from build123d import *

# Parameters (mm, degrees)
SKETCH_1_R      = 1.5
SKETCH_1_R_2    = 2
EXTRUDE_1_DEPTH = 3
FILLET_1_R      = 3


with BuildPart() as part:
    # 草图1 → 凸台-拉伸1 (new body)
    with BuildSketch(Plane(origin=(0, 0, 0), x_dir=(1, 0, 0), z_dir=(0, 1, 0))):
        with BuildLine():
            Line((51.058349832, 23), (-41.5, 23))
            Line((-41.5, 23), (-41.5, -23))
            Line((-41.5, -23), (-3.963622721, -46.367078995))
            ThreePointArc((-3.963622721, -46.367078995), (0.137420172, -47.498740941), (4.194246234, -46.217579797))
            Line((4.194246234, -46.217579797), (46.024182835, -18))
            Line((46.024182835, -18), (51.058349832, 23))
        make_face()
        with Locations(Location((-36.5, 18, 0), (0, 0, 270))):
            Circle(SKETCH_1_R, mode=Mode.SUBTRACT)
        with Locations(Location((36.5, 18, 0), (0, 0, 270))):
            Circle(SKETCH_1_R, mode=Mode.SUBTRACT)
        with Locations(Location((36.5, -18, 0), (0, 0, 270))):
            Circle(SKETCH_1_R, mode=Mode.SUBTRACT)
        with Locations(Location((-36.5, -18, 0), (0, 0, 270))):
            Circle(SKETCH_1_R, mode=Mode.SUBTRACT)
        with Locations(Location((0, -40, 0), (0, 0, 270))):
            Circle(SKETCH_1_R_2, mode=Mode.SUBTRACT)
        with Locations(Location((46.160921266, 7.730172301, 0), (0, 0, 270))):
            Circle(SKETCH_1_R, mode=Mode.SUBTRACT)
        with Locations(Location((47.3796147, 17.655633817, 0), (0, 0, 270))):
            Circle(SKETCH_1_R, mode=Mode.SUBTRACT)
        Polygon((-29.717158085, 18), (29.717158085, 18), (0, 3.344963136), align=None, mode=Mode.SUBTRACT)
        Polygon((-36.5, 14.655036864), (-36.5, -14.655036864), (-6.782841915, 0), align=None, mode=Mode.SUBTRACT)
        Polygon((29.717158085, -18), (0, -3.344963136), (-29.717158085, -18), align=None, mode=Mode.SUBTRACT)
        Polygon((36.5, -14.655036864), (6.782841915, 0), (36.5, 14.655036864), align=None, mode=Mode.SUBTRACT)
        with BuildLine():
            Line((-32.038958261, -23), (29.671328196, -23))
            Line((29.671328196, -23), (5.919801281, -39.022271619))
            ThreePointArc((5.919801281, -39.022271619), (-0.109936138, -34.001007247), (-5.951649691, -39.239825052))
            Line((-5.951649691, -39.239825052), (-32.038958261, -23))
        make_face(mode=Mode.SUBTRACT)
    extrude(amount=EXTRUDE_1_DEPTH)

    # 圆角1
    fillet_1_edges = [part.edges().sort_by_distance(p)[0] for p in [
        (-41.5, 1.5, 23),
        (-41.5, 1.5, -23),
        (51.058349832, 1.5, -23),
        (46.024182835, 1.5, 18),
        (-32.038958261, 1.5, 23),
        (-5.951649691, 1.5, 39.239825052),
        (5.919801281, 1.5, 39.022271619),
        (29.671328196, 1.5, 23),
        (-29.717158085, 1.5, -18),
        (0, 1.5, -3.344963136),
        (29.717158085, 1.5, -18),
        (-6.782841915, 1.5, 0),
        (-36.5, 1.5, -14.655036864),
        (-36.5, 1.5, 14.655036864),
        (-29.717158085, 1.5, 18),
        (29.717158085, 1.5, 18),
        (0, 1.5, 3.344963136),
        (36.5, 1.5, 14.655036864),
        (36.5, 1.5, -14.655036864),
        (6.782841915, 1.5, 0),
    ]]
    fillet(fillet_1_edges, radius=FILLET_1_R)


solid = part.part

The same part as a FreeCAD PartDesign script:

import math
import FreeCAD as App
import Part
import Sketcher
from FreeCAD import Vector
Q = App.Units.Quantity


def edges_at(feature, points):
    """Names of the edges that pass closest to the given points."""
    edges = feature.Shape.Edges
    near = lambda p: min(range(len(edges)), key=lambda i: edges[i].distToShape(Part.Vertex(*p))[0])
    return sorted({f"Edge{near(p) + 1}" for p in points})


def add_polygon(sketch, points):
    """Adds a closed chain of lines whose ends are joined by coincident constraints."""
    first, n = sketch.GeometryCount, len(points)
    for a, b in zip(points, points[1:] + points[:1]):
        sketch.addGeometry(Part.LineSegment(App.Vector(*a, 0), App.Vector(*b, 0)), False)
    for i in range(n):
        sketch.addConstraint(Sketcher.Constraint("Coincident", first + i, 2, first + (i + 1) % n, 1))

doc = App.newDocument("Part")
body = doc.addObject("PartDesign::Body", "Body")

# Sketch on XZ plane
sketch1 = body.newObject("Sketcher::SketchObject", "Sketch")
sketch1.AttachmentSupport = (doc.getObject("XZ_Plane"), [""])
sketch1.MapMode = "FlatFace"
sketch1.addGeometry(Part.LineSegment(Vector(51.05835, -23, 0), Vector(-41.5, -23, 0)), False)  # 0
sketch1.addGeometry(Part.LineSegment(Vector(-41.5, -23, 0), Vector(-41.5, 23, 0)), False)  # 1
sketch1.addGeometry(Part.LineSegment(Vector(-41.5, 23, 0), Vector(-3.963623, 46.367079, 0)), False)  # 2
sketch1.addGeometry(Part.ArcOfCircle(Part.Circle(Vector(0, 40, 0), Vector(0, 0, 1), 7.5), math.radians(55.997241), math.radians(121.903016)), False)  # 3
sketch1.addGeometry(Part.LineSegment(Vector(4.194246, 46.21758, 0), Vector(46.024183, 18, 0)), False)  # 4
sketch1.addGeometry(Part.LineSegment(Vector(46.024183, 18, 0), Vector(51.05835, -23, 0)), False)  # 5
sketch1.addGeometry(Part.Circle(Vector(0, 40, 0), Vector(0, 0, 1), 2), False)  # 6
sketch1.addGeometry(Part.LineSegment(Vector(-5.95165, 39.239825, 0), Vector(-32.038958, 23, 0)), False)  # 7
sketch1.addGeometry(Part.LineSegment(Vector(-32.038958, 23, 0), Vector(29.671328, 23, 0)), False)  # 8
sketch1.addGeometry(Part.LineSegment(Vector(29.671328, 23, 0), Vector(5.919801, 39.022272, 0)), False)  # 9
sketch1.addGeometry(Part.ArcOfCircle(Part.Circle(Vector(0, 40, 0), Vector(0, 0, 1), 6), math.radians(-172.721302), math.radians(-9.378441)), False)  # 10
sketch1.addGeometry(Part.Circle(Vector(-36.5, 18, 0), Vector(0, 0, 1), 1.5), False)  # 11
sketch1.addGeometry(Part.Circle(Vector(36.5, 18, 0), Vector(0, 0, 1), 1.5), False)  # 12
add_polygon(sketch1, [(-36.5, 14.655037), (-36.5, -14.655037), (-6.782842, 0)])  # lines 13-15
add_polygon(sketch1, [(0, 3.344963), (29.717158, 18), (-29.717158, 18)])  # lines 16-18
sketch1.addGeometry(Part.Circle(Vector(-36.5, -18, 0), Vector(0, 0, 1), 1.5), False)  # 19
add_polygon(sketch1, [(0, -3.344963), (-29.717158, -18), (29.717158, -18)])  # lines 20-22
add_polygon(sketch1, [(36.5, -14.655037), (36.5, 14.655037), (6.782842, 0)])  # lines 23-25
sketch1.addGeometry(Part.Circle(Vector(46.160921, -7.730172, 0), Vector(0, 0, 1), 1.5), False)  # 26
sketch1.addGeometry(Part.Circle(Vector(36.5, -18, 0), Vector(0, 0, 1), 1.5), False)  # 27
sketch1.addGeometry(Part.Circle(Vector(47.379615, -17.655634, 0), Vector(0, 0, 1), 1.5), False)  # 28
sketch1.addConstraint([
    Sketcher.Constraint("Coincident", 0, 2, 1, 1),
    Sketcher.Constraint("Coincident", 1, 2, 2, 1),
    Sketcher.Constraint("Tangent", 2, 2, 3, 2),
    Sketcher.Constraint("Tangent", 3, 1, 4, 1),
    Sketcher.Constraint("Coincident", 4, 2, 5, 1),
    Sketcher.Constraint("Coincident", 5, 2, 0, 1),
    Sketcher.Constraint("Coincident", 7, 2, 8, 1),
    Sketcher.Constraint("Coincident", 8, 2, 9, 1),
    Sketcher.Constraint("Coincident", 9, 2, 10, 2),
    Sketcher.Constraint("Coincident", 10, 1, 7, 1),
    Sketcher.Constraint("Horizontal", 0),
    Sketcher.Constraint("Vertical", 1),
    Sketcher.Constraint("Horizontal", 8),
    Sketcher.Constraint("Vertical", 13),
    Sketcher.Constraint("Horizontal", 17),
    Sketcher.Constraint("Horizontal", 21),
    Sketcher.Constraint("Vertical", 23),
    Sketcher.Constraint("Coincident", 6, 3, 3, 3),
    Sketcher.Constraint("Coincident", 10, 3, 3, 3),
    Sketcher.Constraint("Equal", 11, 12),
    Sketcher.Constraint("Equal", 12, 19),
    Sketcher.Constraint("Equal", 19, 26),
    Sketcher.Constraint("Equal", 26, 27),
    Sketcher.Constraint("Equal", 27, 28),
    Sketcher.Constraint("Symmetric", 12, 3, 19, 3, -1, 1),
    Sketcher.Constraint("Symmetric", 11, 3, 27, 3, -1, 1),
    Sketcher.Constraint("Symmetric", 16, 2, 20, 2, -1, 1),
    Sketcher.Constraint("Symmetric", 18, 2, 22, 2, -1, 1),
    Sketcher.Constraint("Symmetric", 13, 2, 23, 2, -1, 1),
    Sketcher.Constraint("Symmetric", 14, 2, 24, 2, -1, 1),
    Sketcher.Constraint("Symmetric", 11, 3, 12, 3, -2),
    Sketcher.Constraint("PointOnObject", 3, 3, -2),
    Sketcher.Constraint("PointOnObject", 14, 2, -1),
    Sketcher.Constraint("PointOnObject", 18, 2, -2),
    Sketcher.Constraint("Parallel", 2, 7),
    Sketcher.Constraint("Parallel", 4, 9),
    Sketcher.Constraint("Parallel", 14, 16),
    Sketcher.Constraint("Parallel", 15, 18),
    Sketcher.Constraint("Parallel", 18, 22),
    Sketcher.Constraint("Parallel", 22, 25),
    Sketcher.Constraint("Horizontal", 12, 3, 4, 2),
    Sketcher.Constraint("Horizontal", 1, 2, 7, 2),
    Sketcher.Constraint("Horizontal", 4, 2, 16, 2),
    Sketcher.Constraint("Horizontal", 15, 2, 23, 2),
    Sketcher.Constraint("Vertical", 19, 3, 13, 2),
    Sketcher.Constraint("Equal", 15, 16),
    Sketcher.Constraint("Diameter", 6, Q("4 mm")),
    Sketcher.Constraint("Diameter", 11, Q("3 mm")),
    Sketcher.Constraint("Radius", 10, Q("6 mm")),
    Sketcher.Constraint("Radius", 3, Q("7.5 mm")),
    Sketcher.Constraint("DistanceY", 1, 1, 1, 2, Q("46 mm")),
    Sketcher.Constraint("Angle", 5, Q("-83 deg")),
    Sketcher.Constraint("DistanceY", -1, 1, 3, 3, Q("40 mm")),
    Sketcher.Constraint("DistanceY", -1, 1, 11, 3, Q("18 mm")),
    Sketcher.Constraint("DistanceY", 0, 2, -1, 1, Q("23 mm")),
    Sketcher.Constraint("DistanceX", 11, 3, 12, 3, Q("73 mm")),
    Sketcher.Constraint("DistanceX", 0, 2, 19, 3, Q("5 mm")),
    Sketcher.Constraint("DistanceX", 0, 2, 0, 1, Q("92.55835 mm")),
    Sketcher.Constraint("DistanceX", -1, 1, 9, 2, Q("5.919801 mm")),
    Sketcher.Constraint("DistanceX", 7, 2, 17, 2, Q("2.3218 mm")),
    Sketcher.Constraint("DistanceX", 8, 1, 8, 2, Q("61.710286 mm")),
    Sketcher.Constraint("DistanceY", 13, 2, 13, 1, Q("29.310074 mm")),
    Sketcher.Constraint("DistanceX", -1, 1, 26, 3, Q("46.160921 mm")),
    Sketcher.Constraint("DistanceY", 28, 3, 26, 3, Q("9.925462 mm")),
    Sketcher.Constraint("DistanceX", 4, 2, 28, 3, Q("1.355432 mm")),
    Sketcher.Constraint("DistanceY", 26, 3, 23, 2, Q("22.385209 mm")),
])
pad1 = body.newObject("PartDesign::Pad", "Pad")
pad1.Profile = sketch1
pad1.Length = 3
pad1.Reversed = True
doc.recompute()

fillet = body.newObject("PartDesign::Fillet", "Fillet")
fillet.Base = (pad1, edges_at(pad1, [
    (-41.5, 1.5, 23),
    (-41.5, 1.5, -23),
    (51.058, 1.5, -23),
    (46.024, 1.5, 18),
    (-32.039, 1.5, 23),
    (-5.952, 1.5, 39.24),
    (5.92, 1.5, 39.022),
    (29.671, 1.5, 23),
    (-29.717, 1.5, -18),
    (0, 1.5, -3.345),
    (29.717, 1.5, -18),
    (-6.783, 1.5, 0),
    (-36.5, 1.5, -14.655),
    (-36.5, 1.5, 14.655),
    (-29.717, 1.5, 18),
    (29.717, 1.5, 18),
    (0, 1.5, 3.345),
    (36.5, 1.5, 14.655),
    (36.5, 1.5, -14.655),
    (6.783, 1.5, 0),
]))
fillet.Radius = 3

doc.recompute()
